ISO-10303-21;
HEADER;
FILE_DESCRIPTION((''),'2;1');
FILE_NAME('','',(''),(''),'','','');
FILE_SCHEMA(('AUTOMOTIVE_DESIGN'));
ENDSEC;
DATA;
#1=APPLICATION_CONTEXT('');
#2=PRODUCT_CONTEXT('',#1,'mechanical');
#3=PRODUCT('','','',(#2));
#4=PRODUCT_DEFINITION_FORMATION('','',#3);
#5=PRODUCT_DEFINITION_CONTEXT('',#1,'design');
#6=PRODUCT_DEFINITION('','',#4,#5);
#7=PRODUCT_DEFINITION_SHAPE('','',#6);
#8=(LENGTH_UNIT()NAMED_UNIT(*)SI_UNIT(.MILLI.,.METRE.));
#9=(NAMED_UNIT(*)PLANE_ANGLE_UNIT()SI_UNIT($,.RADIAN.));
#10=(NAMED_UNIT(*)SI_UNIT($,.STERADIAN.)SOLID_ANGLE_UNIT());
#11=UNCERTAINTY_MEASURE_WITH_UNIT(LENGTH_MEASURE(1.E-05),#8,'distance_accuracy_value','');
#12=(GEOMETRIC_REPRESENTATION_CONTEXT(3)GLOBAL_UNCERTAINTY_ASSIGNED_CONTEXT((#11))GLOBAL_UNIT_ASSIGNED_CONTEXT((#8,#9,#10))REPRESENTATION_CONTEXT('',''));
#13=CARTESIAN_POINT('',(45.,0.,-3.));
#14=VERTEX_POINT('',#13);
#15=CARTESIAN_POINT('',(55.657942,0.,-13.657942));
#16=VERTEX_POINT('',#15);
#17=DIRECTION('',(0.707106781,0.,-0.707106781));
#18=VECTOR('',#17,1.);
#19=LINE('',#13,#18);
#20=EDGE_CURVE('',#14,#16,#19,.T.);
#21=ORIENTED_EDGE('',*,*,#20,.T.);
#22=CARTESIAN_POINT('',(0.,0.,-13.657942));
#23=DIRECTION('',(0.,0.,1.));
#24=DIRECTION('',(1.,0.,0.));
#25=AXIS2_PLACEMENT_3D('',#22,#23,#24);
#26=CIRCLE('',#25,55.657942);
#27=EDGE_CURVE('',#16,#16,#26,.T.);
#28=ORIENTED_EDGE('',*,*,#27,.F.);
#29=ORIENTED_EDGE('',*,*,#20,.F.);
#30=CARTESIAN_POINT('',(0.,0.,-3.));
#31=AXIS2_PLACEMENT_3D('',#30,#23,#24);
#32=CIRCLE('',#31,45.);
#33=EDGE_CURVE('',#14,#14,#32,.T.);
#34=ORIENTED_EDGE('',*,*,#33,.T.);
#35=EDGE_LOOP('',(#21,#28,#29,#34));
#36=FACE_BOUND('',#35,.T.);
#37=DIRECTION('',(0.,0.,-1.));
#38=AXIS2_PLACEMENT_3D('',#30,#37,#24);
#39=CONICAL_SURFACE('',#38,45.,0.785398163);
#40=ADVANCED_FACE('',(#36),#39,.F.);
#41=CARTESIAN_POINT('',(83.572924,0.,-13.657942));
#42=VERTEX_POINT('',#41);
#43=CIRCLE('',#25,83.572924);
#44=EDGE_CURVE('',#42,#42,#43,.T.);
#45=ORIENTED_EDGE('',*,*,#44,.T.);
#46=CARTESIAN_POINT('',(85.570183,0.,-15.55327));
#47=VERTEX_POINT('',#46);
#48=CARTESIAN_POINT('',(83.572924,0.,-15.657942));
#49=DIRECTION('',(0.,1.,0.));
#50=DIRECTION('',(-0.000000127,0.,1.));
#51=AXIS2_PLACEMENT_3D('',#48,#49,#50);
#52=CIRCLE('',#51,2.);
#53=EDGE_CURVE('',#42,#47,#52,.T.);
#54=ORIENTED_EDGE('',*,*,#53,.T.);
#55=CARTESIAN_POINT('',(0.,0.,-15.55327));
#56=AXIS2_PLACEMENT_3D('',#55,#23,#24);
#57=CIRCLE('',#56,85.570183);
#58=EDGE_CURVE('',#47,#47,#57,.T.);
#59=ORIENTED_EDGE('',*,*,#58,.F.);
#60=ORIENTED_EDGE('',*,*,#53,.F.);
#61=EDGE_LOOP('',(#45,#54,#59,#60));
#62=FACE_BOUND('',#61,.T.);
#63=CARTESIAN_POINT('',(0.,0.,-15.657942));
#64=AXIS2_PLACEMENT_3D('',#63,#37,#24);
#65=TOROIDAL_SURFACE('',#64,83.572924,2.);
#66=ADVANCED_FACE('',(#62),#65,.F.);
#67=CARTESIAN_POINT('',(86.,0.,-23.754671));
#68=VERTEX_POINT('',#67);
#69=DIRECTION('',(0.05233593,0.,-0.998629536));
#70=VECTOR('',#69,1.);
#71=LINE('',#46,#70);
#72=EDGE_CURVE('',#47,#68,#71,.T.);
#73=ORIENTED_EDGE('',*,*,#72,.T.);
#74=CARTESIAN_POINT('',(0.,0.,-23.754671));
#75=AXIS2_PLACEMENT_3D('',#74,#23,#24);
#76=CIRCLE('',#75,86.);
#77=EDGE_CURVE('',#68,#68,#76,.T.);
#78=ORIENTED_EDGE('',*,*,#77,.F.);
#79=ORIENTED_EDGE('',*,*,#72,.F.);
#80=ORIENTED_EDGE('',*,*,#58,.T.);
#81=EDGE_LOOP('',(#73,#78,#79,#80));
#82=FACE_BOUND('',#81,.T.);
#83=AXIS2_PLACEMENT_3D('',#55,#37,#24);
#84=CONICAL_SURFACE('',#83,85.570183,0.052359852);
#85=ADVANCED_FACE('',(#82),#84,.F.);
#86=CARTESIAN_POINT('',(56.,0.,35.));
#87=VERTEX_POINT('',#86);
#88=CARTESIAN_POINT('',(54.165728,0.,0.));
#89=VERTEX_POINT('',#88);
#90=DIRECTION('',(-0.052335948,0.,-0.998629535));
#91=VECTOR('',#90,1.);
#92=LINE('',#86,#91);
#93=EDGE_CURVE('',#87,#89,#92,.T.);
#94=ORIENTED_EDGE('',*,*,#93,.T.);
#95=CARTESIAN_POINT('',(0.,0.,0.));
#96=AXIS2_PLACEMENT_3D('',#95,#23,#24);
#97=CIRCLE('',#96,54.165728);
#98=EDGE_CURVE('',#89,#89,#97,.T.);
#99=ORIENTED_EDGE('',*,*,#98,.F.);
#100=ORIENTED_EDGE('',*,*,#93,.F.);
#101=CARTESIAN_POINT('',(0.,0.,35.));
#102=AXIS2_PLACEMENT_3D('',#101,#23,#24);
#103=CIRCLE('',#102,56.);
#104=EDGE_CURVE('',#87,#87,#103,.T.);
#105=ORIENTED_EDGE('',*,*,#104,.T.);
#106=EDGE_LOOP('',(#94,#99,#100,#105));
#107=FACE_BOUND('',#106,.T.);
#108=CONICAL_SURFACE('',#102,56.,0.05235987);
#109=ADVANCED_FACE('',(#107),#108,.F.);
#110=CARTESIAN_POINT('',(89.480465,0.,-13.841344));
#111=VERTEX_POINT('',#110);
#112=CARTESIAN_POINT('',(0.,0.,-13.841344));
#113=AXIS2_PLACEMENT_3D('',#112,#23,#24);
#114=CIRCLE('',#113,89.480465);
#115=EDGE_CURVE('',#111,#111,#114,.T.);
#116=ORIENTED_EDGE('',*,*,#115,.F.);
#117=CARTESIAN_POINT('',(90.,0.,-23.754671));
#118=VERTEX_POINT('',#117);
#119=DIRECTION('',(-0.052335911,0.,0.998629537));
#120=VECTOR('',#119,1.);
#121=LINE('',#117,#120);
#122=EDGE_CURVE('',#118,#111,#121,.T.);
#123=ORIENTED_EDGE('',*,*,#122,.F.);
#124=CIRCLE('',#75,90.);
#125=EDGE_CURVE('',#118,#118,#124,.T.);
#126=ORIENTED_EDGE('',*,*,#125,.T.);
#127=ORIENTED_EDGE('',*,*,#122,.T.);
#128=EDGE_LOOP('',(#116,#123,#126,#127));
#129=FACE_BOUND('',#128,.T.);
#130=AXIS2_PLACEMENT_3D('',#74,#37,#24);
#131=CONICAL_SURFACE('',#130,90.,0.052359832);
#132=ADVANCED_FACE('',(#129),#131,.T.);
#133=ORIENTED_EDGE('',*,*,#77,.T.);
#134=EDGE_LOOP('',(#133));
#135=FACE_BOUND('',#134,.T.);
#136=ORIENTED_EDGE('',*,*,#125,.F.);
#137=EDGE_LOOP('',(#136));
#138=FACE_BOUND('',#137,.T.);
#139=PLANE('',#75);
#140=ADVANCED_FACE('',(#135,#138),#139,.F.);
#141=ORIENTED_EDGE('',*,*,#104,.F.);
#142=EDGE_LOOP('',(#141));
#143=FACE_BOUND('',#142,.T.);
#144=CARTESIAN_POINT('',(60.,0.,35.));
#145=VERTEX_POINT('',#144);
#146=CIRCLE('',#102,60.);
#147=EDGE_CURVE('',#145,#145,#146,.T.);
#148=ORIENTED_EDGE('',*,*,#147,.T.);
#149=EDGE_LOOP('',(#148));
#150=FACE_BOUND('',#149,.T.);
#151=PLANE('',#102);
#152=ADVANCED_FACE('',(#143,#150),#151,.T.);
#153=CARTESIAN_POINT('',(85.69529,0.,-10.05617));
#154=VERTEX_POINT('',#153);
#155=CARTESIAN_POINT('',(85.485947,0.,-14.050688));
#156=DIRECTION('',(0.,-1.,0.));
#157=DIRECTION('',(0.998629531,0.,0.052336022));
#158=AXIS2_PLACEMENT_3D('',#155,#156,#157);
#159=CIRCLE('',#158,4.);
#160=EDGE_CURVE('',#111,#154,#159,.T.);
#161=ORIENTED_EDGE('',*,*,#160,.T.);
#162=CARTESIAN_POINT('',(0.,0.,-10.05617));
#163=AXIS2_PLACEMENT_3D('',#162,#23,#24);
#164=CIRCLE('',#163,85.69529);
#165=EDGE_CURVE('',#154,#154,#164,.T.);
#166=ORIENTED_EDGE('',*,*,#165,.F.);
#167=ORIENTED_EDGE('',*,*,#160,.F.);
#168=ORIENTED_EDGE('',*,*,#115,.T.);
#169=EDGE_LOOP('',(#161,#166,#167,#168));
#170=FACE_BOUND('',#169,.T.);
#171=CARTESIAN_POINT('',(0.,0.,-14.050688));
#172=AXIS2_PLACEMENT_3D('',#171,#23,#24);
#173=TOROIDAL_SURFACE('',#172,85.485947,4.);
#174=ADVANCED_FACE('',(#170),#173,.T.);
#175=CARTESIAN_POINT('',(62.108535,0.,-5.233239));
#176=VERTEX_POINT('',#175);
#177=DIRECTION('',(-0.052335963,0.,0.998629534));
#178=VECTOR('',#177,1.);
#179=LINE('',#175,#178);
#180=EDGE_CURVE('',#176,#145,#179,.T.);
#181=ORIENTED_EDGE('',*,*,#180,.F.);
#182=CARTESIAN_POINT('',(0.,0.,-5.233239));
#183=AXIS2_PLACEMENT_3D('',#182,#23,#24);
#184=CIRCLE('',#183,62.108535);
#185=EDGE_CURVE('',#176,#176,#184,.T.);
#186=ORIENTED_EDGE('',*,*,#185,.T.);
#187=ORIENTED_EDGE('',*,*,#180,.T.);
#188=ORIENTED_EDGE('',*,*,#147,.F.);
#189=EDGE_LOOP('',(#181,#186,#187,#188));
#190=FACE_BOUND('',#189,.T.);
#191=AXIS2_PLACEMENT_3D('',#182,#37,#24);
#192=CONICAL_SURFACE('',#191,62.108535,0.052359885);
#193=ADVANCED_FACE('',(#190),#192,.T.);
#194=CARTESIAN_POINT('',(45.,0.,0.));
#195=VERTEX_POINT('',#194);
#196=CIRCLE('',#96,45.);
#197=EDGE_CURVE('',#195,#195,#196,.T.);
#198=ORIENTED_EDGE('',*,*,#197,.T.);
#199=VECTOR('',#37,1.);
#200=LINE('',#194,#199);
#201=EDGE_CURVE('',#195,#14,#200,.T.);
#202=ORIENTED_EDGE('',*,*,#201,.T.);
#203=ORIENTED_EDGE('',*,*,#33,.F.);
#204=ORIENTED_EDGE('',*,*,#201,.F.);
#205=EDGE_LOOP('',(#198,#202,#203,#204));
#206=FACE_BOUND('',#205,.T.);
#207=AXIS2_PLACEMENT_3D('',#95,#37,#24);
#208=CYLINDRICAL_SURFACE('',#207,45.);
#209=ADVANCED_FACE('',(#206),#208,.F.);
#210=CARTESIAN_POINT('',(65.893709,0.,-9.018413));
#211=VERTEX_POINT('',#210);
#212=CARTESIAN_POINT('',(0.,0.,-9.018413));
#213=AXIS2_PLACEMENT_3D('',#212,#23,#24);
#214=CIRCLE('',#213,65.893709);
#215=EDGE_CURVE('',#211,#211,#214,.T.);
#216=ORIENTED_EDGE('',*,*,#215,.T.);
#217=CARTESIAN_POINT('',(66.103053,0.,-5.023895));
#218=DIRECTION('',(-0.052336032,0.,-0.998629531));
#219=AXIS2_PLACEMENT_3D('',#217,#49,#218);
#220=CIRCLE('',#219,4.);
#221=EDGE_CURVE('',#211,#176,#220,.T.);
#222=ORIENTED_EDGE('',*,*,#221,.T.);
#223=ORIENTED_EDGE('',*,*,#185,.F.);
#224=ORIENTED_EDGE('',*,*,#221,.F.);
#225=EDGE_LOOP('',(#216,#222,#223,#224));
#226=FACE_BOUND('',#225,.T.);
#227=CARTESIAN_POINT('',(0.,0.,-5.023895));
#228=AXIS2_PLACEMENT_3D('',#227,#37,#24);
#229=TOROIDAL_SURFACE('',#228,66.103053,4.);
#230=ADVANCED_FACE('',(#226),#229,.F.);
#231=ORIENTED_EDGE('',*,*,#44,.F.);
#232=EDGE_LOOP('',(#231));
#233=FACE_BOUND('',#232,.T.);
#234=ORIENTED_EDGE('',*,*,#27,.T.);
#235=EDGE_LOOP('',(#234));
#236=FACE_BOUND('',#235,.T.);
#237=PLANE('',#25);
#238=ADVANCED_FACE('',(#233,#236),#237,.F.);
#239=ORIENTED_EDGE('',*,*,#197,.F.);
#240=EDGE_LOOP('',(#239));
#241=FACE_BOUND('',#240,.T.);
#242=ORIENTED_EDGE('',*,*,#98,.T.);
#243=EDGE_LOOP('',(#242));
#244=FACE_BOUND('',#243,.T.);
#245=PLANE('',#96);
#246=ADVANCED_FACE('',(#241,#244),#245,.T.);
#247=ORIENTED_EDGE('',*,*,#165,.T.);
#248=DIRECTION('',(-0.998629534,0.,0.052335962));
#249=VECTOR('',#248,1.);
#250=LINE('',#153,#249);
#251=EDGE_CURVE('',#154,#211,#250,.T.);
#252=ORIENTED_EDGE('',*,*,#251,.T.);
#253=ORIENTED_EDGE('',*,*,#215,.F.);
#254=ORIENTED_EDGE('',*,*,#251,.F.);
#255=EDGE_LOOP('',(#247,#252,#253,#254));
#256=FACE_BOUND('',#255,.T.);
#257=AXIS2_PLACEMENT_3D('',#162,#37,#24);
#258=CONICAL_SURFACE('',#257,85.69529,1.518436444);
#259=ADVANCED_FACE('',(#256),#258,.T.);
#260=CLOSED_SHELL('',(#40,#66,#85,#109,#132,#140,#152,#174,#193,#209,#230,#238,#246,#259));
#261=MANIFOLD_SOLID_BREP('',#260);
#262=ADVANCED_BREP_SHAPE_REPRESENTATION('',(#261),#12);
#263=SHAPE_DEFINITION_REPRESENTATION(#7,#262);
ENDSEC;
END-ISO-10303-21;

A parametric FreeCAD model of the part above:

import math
import FreeCAD as App
import Part
import Sketcher
Q = App.Units.Quantity

doc = App.newDocument("Part")
body = doc.addObject("PartDesign::Body", "Body")

sketch1 = body.newObject("Sketcher::SketchObject", "Sketch")
sketch1.AttachmentSupport = (doc.getObject("XZ_Plane"), [""])
sketch1.MapMode = "FlatFace"
sketch1.addGeometry([
    Part.LineSegment(App.Vector(54.2, 0, 0), App.Vector(45, 0, 0)),
    Part.LineSegment(App.Vector(45, 0, 0), App.Vector(45, -3, 0)),
    Part.LineSegment(App.Vector(45, -3, 0), App.Vector(55.7, -13.7, 0)),
    Part.LineSegment(App.Vector(55.7, -13.7, 0), App.Vector(83.6, -13.7, 0)),
    Part.ArcOfCircle(Part.Circle(App.Vector(83.6, -15.7, 0), App.Vector(0, 0, 1), 2), math.radians(3), math.radians(90)),
    Part.LineSegment(App.Vector(85.6, -15.6, 0), App.Vector(86, -23.8, 0)),
    Part.LineSegment(App.Vector(86, -23.8, 0), App.Vector(90, -23.8, 0)),
    Part.LineSegment(App.Vector(90, -23.8, 0), App.Vector(89.5, -13.8, 0)),
    Part.ArcOfCircle(Part.Circle(App.Vector(85.5, -14.1, 0), App.Vector(0, 0, 1), 4), math.radians(3), math.radians(87)),
    Part.LineSegment(App.Vector(85.7, -10.1, 0), App.Vector(65.9, -9, 0)),
    Part.ArcOfCircle(Part.Circle(App.Vector(66.1, -5, 0), App.Vector(0, 0, 1), 4), math.radians(-177), math.radians(-93)),
    Part.LineSegment(App.Vector(62.1, -5.2, 0), App.Vector(60, 35, 0)),
    Part.LineSegment(App.Vector(60, 35, 0), App.Vector(56, 35, 0)),
    Part.LineSegment(App.Vector(56, 35, 0), App.Vector(54.2, 0, 0)),
], False)
sketch1.addConstraint([
    Sketcher.Constraint("Coincident", 0, 2, 1, 1),
    Sketcher.Constraint("Coincident", 1, 2, 2, 1),
    Sketcher.Constraint("Coincident", 2, 2, 3, 1),
    Sketcher.Constraint("Tangent", 3, 2, 4, 2),
    Sketcher.Constraint("Tangent", 4, 1, 5, 1),
    Sketcher.Constraint("Coincident", 5, 2, 6, 1),
    Sketcher.Constraint("Coincident", 6, 2, 7, 1),
    Sketcher.Constraint("Tangent", 7, 2, 8, 1),
    Sketcher.Constraint("Tangent", 8, 2, 9, 1),
    Sketcher.Constraint("Tangent", 9, 2, 10, 2),
    Sketcher.Constraint("Tangent", 10, 1, 11, 1),
    Sketcher.Constraint("Coincident", 11, 2, 12, 1),
    Sketcher.Constraint("Coincident", 12, 2, 13, 1),
    Sketcher.Constraint("Coincident", 13, 2, 0, 1),
    Sketcher.Constraint("Horizontal", 0),
    Sketcher.Constraint("Vertical", 1),
    Sketcher.Constraint("Horizontal", 3),
    Sketcher.Constraint("Horizontal", 6),
    Sketcher.Constraint("Horizontal", 12),
    Sketcher.Constraint("Equal", 8, 10),
    Sketcher.Constraint("PointOnObject", 0, 2, -1),
    Sketcher.Constraint("Parallel", 5, 7),
    Sketcher.Constraint("Parallel", 7, 11),
    Sketcher.Constraint("Perpendicular", 9, 13),
    Sketcher.Constraint("Equal", 6, 12),
    Sketcher.Constraint("Radius", 4, 2.0),
    Sketcher.Constraint("Radius", 8, 4.0),
    Sketcher.Constraint("DistanceX", 6, 1, 6, 2, 4.0),
    Sketcher.Constraint("DistanceY", 1, 2, 1, 1, 3.0),
    Sketcher.Constraint("Angle", 2, Q("-45 deg")),
    Sketcher.Constraint("Angle", 5, Q("-87.000001 deg")),
    Sketcher.Constraint("Angle", 9, Q("177 deg")),
    Sketcher.Constraint("DistanceX", -1, 1, 0, 2, 45.0),
    Sketcher.Constraint("DistanceX", -1, 1, 5, 2, 86.0),
    Sketcher.Constraint("DistanceX", -1, 1, 11, 2, 60.0),
    Sketcher.Constraint("DistanceY", -1, 1, 11, 2, 35.0),
    Sketcher.Constraint("DistanceY", 5, 2, 4, 1, 8.201401),
    Sketcher.Constraint("DistanceY", 7, 2, 3, 2, 0.183402),
    Sketcher.Constraint("DistanceX", 3, 1, 3, 2, 27.914982),
])
revolution = body.newObject("PartDesign::Revolution", "Revolution")
revolution.Profile = sketch1
revolution.ReferenceAxis = (sketch1, ["V_Axis"])
revolution.Angle = 360

doc.recompute()
